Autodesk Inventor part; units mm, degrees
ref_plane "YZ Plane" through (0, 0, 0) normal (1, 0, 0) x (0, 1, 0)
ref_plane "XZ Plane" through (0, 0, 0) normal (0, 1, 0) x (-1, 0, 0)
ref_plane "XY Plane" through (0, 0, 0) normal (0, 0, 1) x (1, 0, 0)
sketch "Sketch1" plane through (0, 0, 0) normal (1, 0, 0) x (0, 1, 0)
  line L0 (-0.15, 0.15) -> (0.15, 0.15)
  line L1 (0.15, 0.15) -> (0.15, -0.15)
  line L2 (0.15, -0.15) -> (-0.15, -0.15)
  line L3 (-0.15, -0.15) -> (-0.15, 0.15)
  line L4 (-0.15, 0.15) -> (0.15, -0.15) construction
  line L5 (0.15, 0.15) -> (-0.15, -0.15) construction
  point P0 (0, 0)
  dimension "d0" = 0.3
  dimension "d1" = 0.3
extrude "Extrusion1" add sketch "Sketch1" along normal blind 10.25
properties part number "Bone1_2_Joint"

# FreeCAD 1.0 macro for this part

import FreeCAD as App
import Part
import Sketcher


def add_polygon(sketch, points):
    """Adds a closed chain of lines whose ends are joined by coincident constraints."""
    first, n = sketch.GeometryCount, len(points)
    for a, b in zip(points, points[1:] + points[:1]):
        sketch.addGeometry(Part.LineSegment(App.Vector(*a, 0), App.Vector(*b, 0)), False)
    for i in range(n):
        sketch.addConstraint(Sketcher.Constraint("Coincident", first + i, 2, first + (i + 1) % n, 1))

doc = App.newDocument("Part")
params = doc.addObject("Spreadsheet::Sheet", "Params")
for row, (alias, value) in enumerate([
    ("sketch1_width", "0.3 mm"),
    ("pad1_length", "10.25 mm"),
], start=1):
    params.set(f"A{row}", alias)
    params.set(f"B{row}", "=" + value)
    params.setAlias(f"B{row}", alias)

body = doc.addObject("PartDesign::Body", "Body")

# Sketch on YZ plane
sketch1 = body.newObject("Sketcher::SketchObject", "Sketch")
sketch1.AttachmentSupport = (doc.getObject("YZ_Plane"), [""])
sketch1.MapMode = "FlatFace"
add_polygon(sketch1, [(0.15, 0.15), (-0.15, 0.15), (-0.15, -0.15), (0.15, -0.15)])  # lines 0-3
sketch1.addConstraint([
    Sketcher.Constraint("Horizontal", 0),
    Sketcher.Constraint("Vertical", 1),
    Sketcher.Constraint("Horizontal", 2),
    Sketcher.Constraint("Vertical", 3),
    Sketcher.Constraint("Symmetric", 0, 2, 2, 2, -1, 1),
    Sketcher.Constraint("Equal", 2, 1),
    Sketcher.Constraint("DistanceX", 0, 2, 0, 1, 0.3),
])
sketch1.setExpression("Constraints[10]", "Params.sketch1_width")
pad1 = body.newObject("PartDesign::Pad", "Pad")
pad1.Profile = sketch1
pad1.setExpression("Length", "Params.pad1_length")

doc.recompute()
